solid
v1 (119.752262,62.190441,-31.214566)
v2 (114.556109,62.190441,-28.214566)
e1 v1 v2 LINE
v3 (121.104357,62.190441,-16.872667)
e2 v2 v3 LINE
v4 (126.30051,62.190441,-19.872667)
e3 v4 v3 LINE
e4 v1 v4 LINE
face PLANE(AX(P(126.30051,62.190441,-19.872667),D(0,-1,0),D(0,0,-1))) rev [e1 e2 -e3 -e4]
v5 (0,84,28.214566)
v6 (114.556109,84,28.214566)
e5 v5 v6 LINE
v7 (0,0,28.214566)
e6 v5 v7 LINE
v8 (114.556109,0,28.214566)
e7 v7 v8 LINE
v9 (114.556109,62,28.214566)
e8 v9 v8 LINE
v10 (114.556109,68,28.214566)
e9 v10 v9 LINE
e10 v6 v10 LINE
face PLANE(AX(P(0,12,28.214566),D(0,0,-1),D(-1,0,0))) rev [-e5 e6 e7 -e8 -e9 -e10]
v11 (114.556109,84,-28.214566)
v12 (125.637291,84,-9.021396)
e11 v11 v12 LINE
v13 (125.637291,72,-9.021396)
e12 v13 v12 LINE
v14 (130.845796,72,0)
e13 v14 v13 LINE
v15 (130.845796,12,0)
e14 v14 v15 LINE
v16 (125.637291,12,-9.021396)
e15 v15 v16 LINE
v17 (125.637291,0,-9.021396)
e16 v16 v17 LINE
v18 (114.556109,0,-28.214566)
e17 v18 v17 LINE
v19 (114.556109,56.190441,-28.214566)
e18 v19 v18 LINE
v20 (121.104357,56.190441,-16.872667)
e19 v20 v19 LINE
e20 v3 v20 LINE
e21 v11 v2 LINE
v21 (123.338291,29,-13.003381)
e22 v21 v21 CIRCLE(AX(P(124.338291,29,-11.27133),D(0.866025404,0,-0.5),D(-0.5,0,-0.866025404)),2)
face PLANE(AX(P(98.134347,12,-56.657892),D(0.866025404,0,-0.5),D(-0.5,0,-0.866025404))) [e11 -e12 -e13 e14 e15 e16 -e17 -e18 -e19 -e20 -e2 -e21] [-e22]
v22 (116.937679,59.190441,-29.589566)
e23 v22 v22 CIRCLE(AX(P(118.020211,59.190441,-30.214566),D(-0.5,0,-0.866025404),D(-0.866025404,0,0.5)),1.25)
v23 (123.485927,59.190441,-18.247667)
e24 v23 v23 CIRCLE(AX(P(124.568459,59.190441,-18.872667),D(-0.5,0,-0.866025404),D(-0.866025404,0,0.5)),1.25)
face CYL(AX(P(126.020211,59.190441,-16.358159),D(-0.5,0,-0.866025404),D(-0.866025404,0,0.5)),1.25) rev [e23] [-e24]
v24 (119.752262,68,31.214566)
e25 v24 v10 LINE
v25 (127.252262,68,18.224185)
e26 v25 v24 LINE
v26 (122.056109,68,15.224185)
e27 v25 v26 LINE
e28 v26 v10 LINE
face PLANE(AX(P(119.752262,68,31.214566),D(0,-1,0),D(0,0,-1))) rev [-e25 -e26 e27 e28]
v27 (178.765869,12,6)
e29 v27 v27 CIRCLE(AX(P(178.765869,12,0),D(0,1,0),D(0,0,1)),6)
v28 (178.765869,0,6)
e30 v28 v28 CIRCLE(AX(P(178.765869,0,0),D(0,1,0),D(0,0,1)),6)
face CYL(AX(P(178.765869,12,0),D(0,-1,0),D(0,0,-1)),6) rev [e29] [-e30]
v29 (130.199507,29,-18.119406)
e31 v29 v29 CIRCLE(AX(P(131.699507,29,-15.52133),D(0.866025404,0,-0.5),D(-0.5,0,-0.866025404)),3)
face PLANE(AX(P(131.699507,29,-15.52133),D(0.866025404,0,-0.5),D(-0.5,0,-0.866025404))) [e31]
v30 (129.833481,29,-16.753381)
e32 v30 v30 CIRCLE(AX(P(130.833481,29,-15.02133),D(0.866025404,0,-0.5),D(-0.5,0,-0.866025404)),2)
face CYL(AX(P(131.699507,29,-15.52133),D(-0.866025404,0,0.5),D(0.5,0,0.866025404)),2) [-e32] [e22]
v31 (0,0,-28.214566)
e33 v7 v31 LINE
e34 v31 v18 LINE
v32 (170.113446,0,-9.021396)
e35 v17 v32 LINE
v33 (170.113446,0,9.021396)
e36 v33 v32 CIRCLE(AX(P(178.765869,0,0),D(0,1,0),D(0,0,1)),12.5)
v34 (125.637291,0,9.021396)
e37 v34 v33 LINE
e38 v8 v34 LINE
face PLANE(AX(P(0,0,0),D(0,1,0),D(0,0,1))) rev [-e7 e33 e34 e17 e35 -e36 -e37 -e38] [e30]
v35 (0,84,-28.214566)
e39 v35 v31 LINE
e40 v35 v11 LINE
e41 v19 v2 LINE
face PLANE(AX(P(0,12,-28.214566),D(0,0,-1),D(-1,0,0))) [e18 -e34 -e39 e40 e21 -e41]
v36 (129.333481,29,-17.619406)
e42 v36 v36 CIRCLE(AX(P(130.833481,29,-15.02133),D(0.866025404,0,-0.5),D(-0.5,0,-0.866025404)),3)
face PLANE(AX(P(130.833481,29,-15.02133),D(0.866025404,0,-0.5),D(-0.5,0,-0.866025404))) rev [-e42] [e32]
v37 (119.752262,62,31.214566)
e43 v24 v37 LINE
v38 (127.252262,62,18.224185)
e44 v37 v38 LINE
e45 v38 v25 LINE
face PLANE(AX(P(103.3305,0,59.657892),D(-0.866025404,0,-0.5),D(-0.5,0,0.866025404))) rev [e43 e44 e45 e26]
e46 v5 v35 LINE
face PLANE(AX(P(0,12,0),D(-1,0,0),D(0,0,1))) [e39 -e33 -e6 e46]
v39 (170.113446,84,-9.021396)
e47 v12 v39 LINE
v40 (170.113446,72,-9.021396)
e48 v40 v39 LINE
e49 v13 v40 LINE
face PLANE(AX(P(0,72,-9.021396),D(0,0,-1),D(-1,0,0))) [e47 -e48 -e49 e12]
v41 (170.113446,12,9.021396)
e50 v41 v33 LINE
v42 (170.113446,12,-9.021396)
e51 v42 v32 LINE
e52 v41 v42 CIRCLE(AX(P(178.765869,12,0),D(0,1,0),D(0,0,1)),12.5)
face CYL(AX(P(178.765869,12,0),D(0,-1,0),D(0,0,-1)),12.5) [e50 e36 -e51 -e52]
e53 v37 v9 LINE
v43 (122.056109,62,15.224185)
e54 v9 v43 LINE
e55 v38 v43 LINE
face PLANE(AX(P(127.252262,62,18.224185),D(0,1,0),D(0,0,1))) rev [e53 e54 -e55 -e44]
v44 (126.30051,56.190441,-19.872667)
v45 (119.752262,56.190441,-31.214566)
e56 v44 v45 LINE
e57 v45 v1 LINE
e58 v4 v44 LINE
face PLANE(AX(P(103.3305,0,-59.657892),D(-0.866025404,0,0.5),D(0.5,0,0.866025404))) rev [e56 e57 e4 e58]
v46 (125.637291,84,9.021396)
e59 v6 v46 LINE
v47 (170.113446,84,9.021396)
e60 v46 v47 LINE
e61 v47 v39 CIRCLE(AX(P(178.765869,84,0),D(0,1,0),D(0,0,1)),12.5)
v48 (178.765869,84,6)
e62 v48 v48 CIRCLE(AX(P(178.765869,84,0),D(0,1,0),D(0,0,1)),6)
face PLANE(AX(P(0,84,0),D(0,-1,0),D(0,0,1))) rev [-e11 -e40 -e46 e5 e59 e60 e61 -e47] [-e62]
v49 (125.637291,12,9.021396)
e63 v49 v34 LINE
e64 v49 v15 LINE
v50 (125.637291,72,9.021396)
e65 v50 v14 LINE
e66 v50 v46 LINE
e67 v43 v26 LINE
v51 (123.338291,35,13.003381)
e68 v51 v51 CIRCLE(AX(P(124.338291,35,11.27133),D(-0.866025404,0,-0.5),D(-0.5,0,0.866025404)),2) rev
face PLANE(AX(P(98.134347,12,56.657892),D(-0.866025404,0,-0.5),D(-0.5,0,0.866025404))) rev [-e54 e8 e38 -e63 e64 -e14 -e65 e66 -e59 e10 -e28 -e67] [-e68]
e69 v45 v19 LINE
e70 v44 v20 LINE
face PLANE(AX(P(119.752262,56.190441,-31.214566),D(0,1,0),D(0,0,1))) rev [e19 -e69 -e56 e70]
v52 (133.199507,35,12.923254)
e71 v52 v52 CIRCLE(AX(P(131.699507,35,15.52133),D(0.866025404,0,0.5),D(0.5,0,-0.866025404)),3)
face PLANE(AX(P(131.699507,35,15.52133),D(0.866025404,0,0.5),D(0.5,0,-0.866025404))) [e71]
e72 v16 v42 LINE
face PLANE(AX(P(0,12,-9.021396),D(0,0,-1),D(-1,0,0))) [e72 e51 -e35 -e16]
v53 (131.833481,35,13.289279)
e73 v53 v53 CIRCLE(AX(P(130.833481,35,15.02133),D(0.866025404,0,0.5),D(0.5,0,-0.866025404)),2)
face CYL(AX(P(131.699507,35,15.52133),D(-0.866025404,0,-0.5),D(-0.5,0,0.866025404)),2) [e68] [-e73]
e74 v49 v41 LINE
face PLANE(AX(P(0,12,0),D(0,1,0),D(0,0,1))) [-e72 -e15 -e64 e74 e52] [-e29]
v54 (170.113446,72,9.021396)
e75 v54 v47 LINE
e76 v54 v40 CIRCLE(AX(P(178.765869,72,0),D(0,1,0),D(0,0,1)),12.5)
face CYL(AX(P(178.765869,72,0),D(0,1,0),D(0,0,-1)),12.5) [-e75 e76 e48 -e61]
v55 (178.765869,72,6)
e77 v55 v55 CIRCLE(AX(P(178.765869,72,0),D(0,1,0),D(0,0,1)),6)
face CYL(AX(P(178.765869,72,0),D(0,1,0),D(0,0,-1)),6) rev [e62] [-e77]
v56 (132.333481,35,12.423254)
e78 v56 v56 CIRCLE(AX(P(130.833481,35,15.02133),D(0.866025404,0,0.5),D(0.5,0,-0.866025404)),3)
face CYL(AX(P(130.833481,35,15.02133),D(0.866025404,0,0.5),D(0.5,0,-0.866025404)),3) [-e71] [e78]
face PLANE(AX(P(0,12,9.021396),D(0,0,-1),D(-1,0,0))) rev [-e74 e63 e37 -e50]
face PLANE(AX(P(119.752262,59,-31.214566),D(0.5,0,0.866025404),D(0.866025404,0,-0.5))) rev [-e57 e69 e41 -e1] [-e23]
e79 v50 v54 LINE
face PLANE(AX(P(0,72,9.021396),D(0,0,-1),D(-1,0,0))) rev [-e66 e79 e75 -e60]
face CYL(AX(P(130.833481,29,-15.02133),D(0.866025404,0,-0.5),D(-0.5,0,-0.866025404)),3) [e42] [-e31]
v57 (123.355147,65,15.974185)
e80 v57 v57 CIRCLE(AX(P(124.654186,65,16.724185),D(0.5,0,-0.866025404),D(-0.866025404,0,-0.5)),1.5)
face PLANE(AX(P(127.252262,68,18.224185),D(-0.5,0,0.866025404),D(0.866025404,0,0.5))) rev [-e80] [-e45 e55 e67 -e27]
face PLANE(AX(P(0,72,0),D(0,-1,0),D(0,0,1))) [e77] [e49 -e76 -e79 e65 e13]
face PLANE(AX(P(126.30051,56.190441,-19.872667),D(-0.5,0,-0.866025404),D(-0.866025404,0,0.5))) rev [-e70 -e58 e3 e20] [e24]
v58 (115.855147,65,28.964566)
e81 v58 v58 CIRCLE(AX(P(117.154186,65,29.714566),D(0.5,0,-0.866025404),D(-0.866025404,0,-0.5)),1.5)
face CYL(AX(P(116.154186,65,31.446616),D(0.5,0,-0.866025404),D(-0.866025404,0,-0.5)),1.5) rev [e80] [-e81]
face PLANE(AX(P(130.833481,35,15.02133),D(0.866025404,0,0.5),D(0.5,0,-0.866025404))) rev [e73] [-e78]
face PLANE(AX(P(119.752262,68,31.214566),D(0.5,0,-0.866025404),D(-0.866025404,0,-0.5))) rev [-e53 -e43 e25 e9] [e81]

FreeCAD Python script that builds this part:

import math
import FreeCAD as App
import Part
import Sketcher
from FreeCAD import Vector
Q = App.Units.Quantity


def add_polygon(sketch, points):
    """Adds a closed chain of lines whose ends are joined by coincident constraints."""
    first, n = sketch.GeometryCount, len(points)
    for a, b in zip(points, points[1:] + points[:1]):
        sketch.addGeometry(Part.LineSegment(App.Vector(*a, 0), App.Vector(*b, 0)), False)
    for i in range(n):
        sketch.addConstraint(Sketcher.Constraint("Coincident", first + i, 2, first + (i + 1) % n, 1))

doc = App.newDocument("Part")
body = doc.addObject("PartDesign::Body", "Body")

sketch1 = body.newObject("Sketcher::SketchObject", "Sketch")
sketch1.AttachmentSupport = (doc.getObject("XZ_Plane"), [""])
sketch1.MapMode = "FlatFace"
sketch1.addGeometry([
    Part.LineSegment(Vector(0, -28.214566, 0), Vector(0, 28.214566, 0)),
    Part.LineSegment(Vector(0, 28.214566, 0), Vector(114.556109, 28.214566, 0)),
    Part.LineSegment(Vector(114.556109, 28.214566, 0), Vector(125.637291, 9.021396, 0)),
    Part.LineSegment(Vector(125.637291, 9.021396, 0), Vector(170.113446, 9.021396, 0)),
    Part.ArcOfCircle(Part.Circle(Vector(178.765869, 0, 0), Vector(0, 0, 1), 12.5), math.radians(-133.804017), math.radians(133.804017)),
    Part.LineSegment(Vector(170.113446, -9.021396, 0), Vector(125.637291, -9.021396, 0)),
    Part.LineSegment(Vector(125.637291, -9.021396, 0), Vector(114.556109, -28.214566, 0)),
    Part.LineSegment(Vector(114.556109, -28.214566, 0), Vector(0, -28.214566, 0)),
    Part.Circle(Vector(178.765869, 0, 0), Vector(0, 0, 1), 6),
], False)
sketch1.addConstraint([
    Sketcher.Constraint("Coincident", 0, 2, 1, 1),
    Sketcher.Constraint("Coincident", 1, 2, 2, 1),
    Sketcher.Constraint("Coincident", 2, 2, 3, 1),
    Sketcher.Constraint("Coincident", 3, 2, 4, 2),
    Sketcher.Constraint("Coincident", 4, 1, 5, 1),
    Sketcher.Constraint("Coincident", 5, 2, 6, 1),
    Sketcher.Constraint("Coincident", 6, 2, 7, 1),
    Sketcher.Constraint("Coincident", 7, 2, 0, 1),
    Sketcher.Constraint("Vertical", 0),
    Sketcher.Constraint("Horizontal", 1),
    Sketcher.Constraint("Horizontal", 3),
    Sketcher.Constraint("Horizontal", 5),
    Sketcher.Constraint("Horizontal", 7),
    Sketcher.Constraint("Coincident", 8, 3, 4, 3),
    Sketcher.Constraint("Symmetric", 0, 2, 7, 2, -1, 1),
    Sketcher.Constraint("Symmetric", 3, 2, 4, 1, -1),
    Sketcher.Constraint("Vertical", 2, 2, 5, 2),
    Sketcher.Constraint("Vertical", 1, 2, 6, 2),
    Sketcher.Constraint("Diameter", 8, 12.0),
    Sketcher.Constraint("Radius", 4, 12.5),
    Sketcher.Constraint("Angle", 2, Q("-60 deg")),
    Sketcher.Constraint("DistanceX", 1, 1, 1, 2, 114.556109),
    Sketcher.Constraint("DistanceY", 0, 1, 0, 2, 56.429131),
    Sketcher.Constraint("DistanceX", 3, 1, 3, 2, 44.476156),
    Sketcher.Constraint("DistanceX", -1, 1, 4, 3, 178.765869),
])
pad1 = body.newObject("PartDesign::Pad", "Pad")
pad1.Profile = sketch1
pad1.Length = 12
pad1.Reversed = True

sketch2 = body.newObject("Sketcher::SketchObject", "Sketch001")
sketch2.AttachmentSupport = (doc.getObject("XZ_Plane"), [""])
sketch2.MapMode = "FlatFace"
sketch2.AttachmentOffset = App.Placement(Vector(0, 0, -12), App.Rotation())
add_polygon(sketch2, [(0, -28.214566), (0, 28.214566), (114.556109, 28.214566), (130.845796, 0), (125.637291, -9.021396), (114.556109, -28.214566)])
sketch2.addConstraint([
    Sketcher.Constraint("Vertical", 0),
    Sketcher.Constraint("Horizontal", 1),
    Sketcher.Constraint("Horizontal", 5),
    Sketcher.Constraint("Symmetric", 0, 2, 5, 2, -1, 1),
    Sketcher.Constraint("PointOnObject", 2, 2, -1),
    Sketcher.Constraint("Parallel", 3, 4),
    Sketcher.Constraint("Vertical", 1, 2, 4, 2),
    Sketcher.Constraint("Angle", 2, Q("-60 deg")),
    Sketcher.Constraint("DistanceX", 1, 1, 1, 2, 114.556109),
    Sketcher.Constraint("DistanceY", 0, 1, 0, 2, 56.429131),
    Sketcher.Constraint("Distance", 3, 10.417011),
])
pad2 = body.newObject("PartDesign::Pad", "Pad001")
pad2.Profile = sketch2
pad2.Length = 30
pad2.Reversed = True
body2 = doc.addObject("PartDesign::Body", "Body001")
doc.recompute()

body2.BaseFeature = body
doc.recompute()

mirroring = doc.addObject("Part::Mirroring", "Mirroring")
mirroring.Source = body
mirroring.Base = Vector(0, 42, 0)
mirroring.Normal = Vector(0, -1, 0)
body3 = doc.addObject("PartDesign::Body", "Body002")
body3.BaseFeature = mirroring
boolean = body2.newObject("PartDesign::Boolean", "Boolean")
boolean.Type = "Fuse"
boolean.addObjects([body3])
doc.recompute()

sketch3 = body2.newObject("Sketcher::SketchObject", "Sketch002")
sketch3.Placement = App.Placement(Vector(98.134347, 0, -56.657892), App.Rotation(Vector(-0.5, 0, -0.866025404), Vector(0, 1, 0), Vector(0.866025404, 0, -0.5), "ZXY"))
sketch3.addGeometry(Part.Circle(Vector(-52.407887, 29, 0), Vector(0, 0, 1), 2), False)
sketch3.addConstraint([
    Sketcher.Constraint("Diameter", 0, 4.0),
    Sketcher.Constraint("DistanceY", -1, 1, 0, 3, 29.0),
    Sketcher.Constraint("DistanceX", 0, 3, -1, 1, 52.407887),
])
pad3 = body2.newObject("PartDesign::Pad", "Pad002")
pad3.Profile = sketch3
pad3.Length = 8.5

sketch4 = body2.newObject("Sketcher::SketchObject", "Sketch003")
sketch4.Placement = App.Placement(Vector(98.134347, 0, 56.657892), App.Rotation(Vector(0.5, 0, -0.866025404), Vector(0, 1, 0), Vector(0.866025404, 0, 0.5), "ZXY"))
sketch4.addGeometry(Part.Circle(Vector(52.407887, 35, 0), Vector(0, 0, 1), 2), False)
sketch4.addConstraint([
    Sketcher.Constraint("Diameter", 0, 4.0),
    Sketcher.Constraint("DistanceY", -1, 1, 0, 3, 35.0),
    Sketcher.Constraint("DistanceX", -1, 1, 0, 3, 52.407887),
])
pad4 = body2.newObject("PartDesign::Pad", "Pad003")
pad4.Profile = sketch4
pad4.Length = 8.5

sketch5 = body2.newObject("Sketcher::SketchObject", "Sketch004")
sketch5.Placement = App.Placement(Vector(98.134347, 0, -56.657892), App.Rotation(Vector(-0.5, 0, -0.866025404), Vector(0, 1, 0), Vector(0.866025404, 0, -0.5), "ZXY"))
add_polygon(sketch5, [(-32.843524, 56.190441), (-32.843524, 62.190441), (-45.94002, 62.190441), (-45.94002, 56.190441)])
sketch5.addConstraint([
    Sketcher.Constraint("Vertical", 0),
    Sketcher.Constraint("Horizontal", 1),
    Sketcher.Constraint("Vertical", 2),
    Sketcher.Constraint("Horizontal", 3),
    Sketcher.Constraint("DistanceY", 0, 1, 0, 2, 6.0),
    Sketcher.Constraint("DistanceX", 1, 2, 1, 1, 13.096496),
    Sketcher.Constraint("DistanceY", -1, 1, 0, 2, 62.190441),
    Sketcher.Constraint("DistanceX", 1, 2, -1, 1, 45.94002),
])
pad5 = body2.newObject("PartDesign::Pad", "Pad004")
pad5.Profile = sketch5
pad5.Length = 6

sketch6 = body2.newObject("Sketcher::SketchObject", "Sketch005")
sketch6.Placement = App.Placement(Vector(98.134347, 0, 56.657892), App.Rotation(Vector(0.5, 0, -0.866025404), Vector(0, 1, 0), Vector(0.866025404, 0, 0.5), "ZXY"))
add_polygon(sketch6, [(32.843524, 68), (32.843524, 62), (47.843524, 62), (47.843524, 68)])
sketch6.addConstraint([
    Sketcher.Constraint("Vertical", 0),
    Sketcher.Constraint("Horizontal", 1),
    Sketcher.Constraint("Vertical", 2),
    Sketcher.Constraint("Horizontal", 3),
    Sketcher.Constraint("DistanceX", 1, 1, 1, 2, 15.0),
    Sketcher.Constraint("DistanceY", 0, 2, 0, 1, 6.0),
    Sketcher.Constraint("DistanceY", -1, 1, 0, 2, 62.0),
    Sketcher.Constraint("DistanceX", -1, 1, 0, 2, 32.843524),
])
pad6 = body2.newObject("PartDesign::Pad", "Pad005")
pad6.Profile = sketch6
pad6.Length = 6

sketch7 = body2.newObject("Sketcher::SketchObject", "Sketch006")
sketch7.Placement = App.Placement(Vector(105.495563, 0, -60.907892), App.Rotation(Vector(-0.5, 0, -0.866025404), Vector(0, 1, 0), Vector(0.866025404, 0, -0.5), "ZXY"))
sketch7.addGeometry(Part.Circle(Vector(-52.407887, 29, 0), Vector(0, 0, 1), 3), False)
sketch7.addConstraint([
    Sketcher.Constraint("Diameter", 0, 6.0),
    Sketcher.Constraint("DistanceY", -1, 1, 0, 3, 29.0),
    Sketcher.Constraint("DistanceX", 0, 3, -1, 1, 52.407887),
])
pad7 = body2.newObject("PartDesign::Pad", "Pad006")
pad7.Profile = sketch7
pad7.Length = 1
pad7.Reversed = True

sketch8 = body2.newObject("Sketcher::SketchObject", "Sketch007")
sketch8.Placement = App.Placement(Vector(105.495563, 0, 60.907892), App.Rotation(Vector(0.5, 0, -0.866025404), Vector(0, 1, 0), Vector(0.866025404, 0, 0.5), "ZXY"))
sketch8.addGeometry(Part.Circle(Vector(52.407887, 35, 0), Vector(0, 0, 1), 3), False)
sketch8.addConstraint([
    Sketcher.Constraint("Diameter", 0, 6.0),
    Sketcher.Constraint("DistanceY", -1, 1, 0, 3, 35.0),
    Sketcher.Constraint("DistanceX", -1, 1, 0, 3, 52.407887),
])
pad8 = body2.newObject("PartDesign::Pad", "Pad007")
pad8.Profile = sketch8
pad8.Length = 1
pad8.Reversed = True

sketch9 = body2.newObject("Sketcher::SketchObject", "Sketch008")
sketch9.Placement = App.Placement(Vector(16.421762, 0, 28.443326), App.Rotation(Vector(-0.866025404, 0, 0.5), Vector(0, 1, 0), Vector(-0.5, 0, -0.866025404), "ZXY"))
sketch9.addGeometry(Part.Circle(Vector(-117.315784, 59.190441, 0), Vector(0, 0, 1), 1.25), False)
sketch9.addConstraint([
    Sketcher.Constraint("Diameter", 0, 2.5),
    Sketcher.Constraint("DistanceY", -1, 1, 0, 3, 59.190441),
    Sketcher.Constraint("DistanceX", 0, 3, -1, 1, 117.315784),
])
pocket1 = body2.newObject("PartDesign::Pocket", "Pocket")
pocket1.Profile = sketch9
pocket1.Length = 16

sketch10 = body2.newObject("Sketcher::SketchObject", "Sketch009")
sketch10.Placement = App.Placement(Vector(23.921762, 0, -41.433707), App.Rotation(Vector(-0.866025404, 0, -0.5), Vector(0, 1, 0), Vector(0.5, 0, -0.866025404), "ZXY"))
sketch10.addGeometry(Part.Circle(Vector(-116.315784, 65, 0), Vector(0, 0, 1), 1.5), False)
sketch10.addConstraint([
    Sketcher.Constraint("Diameter", 0, 3.0),
    Sketcher.Constraint("DistanceY", -1, 1, 0, 3, 65.0),
    Sketcher.Constraint("DistanceX", 0, 3, -1, 1, 116.315784),
])
pocket2 = body2.newObject("PartDesign::Pocket", "Pocket001")
pocket2.Profile = sketch10
pocket2.Length = 17
mirroring.Visibility = False

doc.recompute()
